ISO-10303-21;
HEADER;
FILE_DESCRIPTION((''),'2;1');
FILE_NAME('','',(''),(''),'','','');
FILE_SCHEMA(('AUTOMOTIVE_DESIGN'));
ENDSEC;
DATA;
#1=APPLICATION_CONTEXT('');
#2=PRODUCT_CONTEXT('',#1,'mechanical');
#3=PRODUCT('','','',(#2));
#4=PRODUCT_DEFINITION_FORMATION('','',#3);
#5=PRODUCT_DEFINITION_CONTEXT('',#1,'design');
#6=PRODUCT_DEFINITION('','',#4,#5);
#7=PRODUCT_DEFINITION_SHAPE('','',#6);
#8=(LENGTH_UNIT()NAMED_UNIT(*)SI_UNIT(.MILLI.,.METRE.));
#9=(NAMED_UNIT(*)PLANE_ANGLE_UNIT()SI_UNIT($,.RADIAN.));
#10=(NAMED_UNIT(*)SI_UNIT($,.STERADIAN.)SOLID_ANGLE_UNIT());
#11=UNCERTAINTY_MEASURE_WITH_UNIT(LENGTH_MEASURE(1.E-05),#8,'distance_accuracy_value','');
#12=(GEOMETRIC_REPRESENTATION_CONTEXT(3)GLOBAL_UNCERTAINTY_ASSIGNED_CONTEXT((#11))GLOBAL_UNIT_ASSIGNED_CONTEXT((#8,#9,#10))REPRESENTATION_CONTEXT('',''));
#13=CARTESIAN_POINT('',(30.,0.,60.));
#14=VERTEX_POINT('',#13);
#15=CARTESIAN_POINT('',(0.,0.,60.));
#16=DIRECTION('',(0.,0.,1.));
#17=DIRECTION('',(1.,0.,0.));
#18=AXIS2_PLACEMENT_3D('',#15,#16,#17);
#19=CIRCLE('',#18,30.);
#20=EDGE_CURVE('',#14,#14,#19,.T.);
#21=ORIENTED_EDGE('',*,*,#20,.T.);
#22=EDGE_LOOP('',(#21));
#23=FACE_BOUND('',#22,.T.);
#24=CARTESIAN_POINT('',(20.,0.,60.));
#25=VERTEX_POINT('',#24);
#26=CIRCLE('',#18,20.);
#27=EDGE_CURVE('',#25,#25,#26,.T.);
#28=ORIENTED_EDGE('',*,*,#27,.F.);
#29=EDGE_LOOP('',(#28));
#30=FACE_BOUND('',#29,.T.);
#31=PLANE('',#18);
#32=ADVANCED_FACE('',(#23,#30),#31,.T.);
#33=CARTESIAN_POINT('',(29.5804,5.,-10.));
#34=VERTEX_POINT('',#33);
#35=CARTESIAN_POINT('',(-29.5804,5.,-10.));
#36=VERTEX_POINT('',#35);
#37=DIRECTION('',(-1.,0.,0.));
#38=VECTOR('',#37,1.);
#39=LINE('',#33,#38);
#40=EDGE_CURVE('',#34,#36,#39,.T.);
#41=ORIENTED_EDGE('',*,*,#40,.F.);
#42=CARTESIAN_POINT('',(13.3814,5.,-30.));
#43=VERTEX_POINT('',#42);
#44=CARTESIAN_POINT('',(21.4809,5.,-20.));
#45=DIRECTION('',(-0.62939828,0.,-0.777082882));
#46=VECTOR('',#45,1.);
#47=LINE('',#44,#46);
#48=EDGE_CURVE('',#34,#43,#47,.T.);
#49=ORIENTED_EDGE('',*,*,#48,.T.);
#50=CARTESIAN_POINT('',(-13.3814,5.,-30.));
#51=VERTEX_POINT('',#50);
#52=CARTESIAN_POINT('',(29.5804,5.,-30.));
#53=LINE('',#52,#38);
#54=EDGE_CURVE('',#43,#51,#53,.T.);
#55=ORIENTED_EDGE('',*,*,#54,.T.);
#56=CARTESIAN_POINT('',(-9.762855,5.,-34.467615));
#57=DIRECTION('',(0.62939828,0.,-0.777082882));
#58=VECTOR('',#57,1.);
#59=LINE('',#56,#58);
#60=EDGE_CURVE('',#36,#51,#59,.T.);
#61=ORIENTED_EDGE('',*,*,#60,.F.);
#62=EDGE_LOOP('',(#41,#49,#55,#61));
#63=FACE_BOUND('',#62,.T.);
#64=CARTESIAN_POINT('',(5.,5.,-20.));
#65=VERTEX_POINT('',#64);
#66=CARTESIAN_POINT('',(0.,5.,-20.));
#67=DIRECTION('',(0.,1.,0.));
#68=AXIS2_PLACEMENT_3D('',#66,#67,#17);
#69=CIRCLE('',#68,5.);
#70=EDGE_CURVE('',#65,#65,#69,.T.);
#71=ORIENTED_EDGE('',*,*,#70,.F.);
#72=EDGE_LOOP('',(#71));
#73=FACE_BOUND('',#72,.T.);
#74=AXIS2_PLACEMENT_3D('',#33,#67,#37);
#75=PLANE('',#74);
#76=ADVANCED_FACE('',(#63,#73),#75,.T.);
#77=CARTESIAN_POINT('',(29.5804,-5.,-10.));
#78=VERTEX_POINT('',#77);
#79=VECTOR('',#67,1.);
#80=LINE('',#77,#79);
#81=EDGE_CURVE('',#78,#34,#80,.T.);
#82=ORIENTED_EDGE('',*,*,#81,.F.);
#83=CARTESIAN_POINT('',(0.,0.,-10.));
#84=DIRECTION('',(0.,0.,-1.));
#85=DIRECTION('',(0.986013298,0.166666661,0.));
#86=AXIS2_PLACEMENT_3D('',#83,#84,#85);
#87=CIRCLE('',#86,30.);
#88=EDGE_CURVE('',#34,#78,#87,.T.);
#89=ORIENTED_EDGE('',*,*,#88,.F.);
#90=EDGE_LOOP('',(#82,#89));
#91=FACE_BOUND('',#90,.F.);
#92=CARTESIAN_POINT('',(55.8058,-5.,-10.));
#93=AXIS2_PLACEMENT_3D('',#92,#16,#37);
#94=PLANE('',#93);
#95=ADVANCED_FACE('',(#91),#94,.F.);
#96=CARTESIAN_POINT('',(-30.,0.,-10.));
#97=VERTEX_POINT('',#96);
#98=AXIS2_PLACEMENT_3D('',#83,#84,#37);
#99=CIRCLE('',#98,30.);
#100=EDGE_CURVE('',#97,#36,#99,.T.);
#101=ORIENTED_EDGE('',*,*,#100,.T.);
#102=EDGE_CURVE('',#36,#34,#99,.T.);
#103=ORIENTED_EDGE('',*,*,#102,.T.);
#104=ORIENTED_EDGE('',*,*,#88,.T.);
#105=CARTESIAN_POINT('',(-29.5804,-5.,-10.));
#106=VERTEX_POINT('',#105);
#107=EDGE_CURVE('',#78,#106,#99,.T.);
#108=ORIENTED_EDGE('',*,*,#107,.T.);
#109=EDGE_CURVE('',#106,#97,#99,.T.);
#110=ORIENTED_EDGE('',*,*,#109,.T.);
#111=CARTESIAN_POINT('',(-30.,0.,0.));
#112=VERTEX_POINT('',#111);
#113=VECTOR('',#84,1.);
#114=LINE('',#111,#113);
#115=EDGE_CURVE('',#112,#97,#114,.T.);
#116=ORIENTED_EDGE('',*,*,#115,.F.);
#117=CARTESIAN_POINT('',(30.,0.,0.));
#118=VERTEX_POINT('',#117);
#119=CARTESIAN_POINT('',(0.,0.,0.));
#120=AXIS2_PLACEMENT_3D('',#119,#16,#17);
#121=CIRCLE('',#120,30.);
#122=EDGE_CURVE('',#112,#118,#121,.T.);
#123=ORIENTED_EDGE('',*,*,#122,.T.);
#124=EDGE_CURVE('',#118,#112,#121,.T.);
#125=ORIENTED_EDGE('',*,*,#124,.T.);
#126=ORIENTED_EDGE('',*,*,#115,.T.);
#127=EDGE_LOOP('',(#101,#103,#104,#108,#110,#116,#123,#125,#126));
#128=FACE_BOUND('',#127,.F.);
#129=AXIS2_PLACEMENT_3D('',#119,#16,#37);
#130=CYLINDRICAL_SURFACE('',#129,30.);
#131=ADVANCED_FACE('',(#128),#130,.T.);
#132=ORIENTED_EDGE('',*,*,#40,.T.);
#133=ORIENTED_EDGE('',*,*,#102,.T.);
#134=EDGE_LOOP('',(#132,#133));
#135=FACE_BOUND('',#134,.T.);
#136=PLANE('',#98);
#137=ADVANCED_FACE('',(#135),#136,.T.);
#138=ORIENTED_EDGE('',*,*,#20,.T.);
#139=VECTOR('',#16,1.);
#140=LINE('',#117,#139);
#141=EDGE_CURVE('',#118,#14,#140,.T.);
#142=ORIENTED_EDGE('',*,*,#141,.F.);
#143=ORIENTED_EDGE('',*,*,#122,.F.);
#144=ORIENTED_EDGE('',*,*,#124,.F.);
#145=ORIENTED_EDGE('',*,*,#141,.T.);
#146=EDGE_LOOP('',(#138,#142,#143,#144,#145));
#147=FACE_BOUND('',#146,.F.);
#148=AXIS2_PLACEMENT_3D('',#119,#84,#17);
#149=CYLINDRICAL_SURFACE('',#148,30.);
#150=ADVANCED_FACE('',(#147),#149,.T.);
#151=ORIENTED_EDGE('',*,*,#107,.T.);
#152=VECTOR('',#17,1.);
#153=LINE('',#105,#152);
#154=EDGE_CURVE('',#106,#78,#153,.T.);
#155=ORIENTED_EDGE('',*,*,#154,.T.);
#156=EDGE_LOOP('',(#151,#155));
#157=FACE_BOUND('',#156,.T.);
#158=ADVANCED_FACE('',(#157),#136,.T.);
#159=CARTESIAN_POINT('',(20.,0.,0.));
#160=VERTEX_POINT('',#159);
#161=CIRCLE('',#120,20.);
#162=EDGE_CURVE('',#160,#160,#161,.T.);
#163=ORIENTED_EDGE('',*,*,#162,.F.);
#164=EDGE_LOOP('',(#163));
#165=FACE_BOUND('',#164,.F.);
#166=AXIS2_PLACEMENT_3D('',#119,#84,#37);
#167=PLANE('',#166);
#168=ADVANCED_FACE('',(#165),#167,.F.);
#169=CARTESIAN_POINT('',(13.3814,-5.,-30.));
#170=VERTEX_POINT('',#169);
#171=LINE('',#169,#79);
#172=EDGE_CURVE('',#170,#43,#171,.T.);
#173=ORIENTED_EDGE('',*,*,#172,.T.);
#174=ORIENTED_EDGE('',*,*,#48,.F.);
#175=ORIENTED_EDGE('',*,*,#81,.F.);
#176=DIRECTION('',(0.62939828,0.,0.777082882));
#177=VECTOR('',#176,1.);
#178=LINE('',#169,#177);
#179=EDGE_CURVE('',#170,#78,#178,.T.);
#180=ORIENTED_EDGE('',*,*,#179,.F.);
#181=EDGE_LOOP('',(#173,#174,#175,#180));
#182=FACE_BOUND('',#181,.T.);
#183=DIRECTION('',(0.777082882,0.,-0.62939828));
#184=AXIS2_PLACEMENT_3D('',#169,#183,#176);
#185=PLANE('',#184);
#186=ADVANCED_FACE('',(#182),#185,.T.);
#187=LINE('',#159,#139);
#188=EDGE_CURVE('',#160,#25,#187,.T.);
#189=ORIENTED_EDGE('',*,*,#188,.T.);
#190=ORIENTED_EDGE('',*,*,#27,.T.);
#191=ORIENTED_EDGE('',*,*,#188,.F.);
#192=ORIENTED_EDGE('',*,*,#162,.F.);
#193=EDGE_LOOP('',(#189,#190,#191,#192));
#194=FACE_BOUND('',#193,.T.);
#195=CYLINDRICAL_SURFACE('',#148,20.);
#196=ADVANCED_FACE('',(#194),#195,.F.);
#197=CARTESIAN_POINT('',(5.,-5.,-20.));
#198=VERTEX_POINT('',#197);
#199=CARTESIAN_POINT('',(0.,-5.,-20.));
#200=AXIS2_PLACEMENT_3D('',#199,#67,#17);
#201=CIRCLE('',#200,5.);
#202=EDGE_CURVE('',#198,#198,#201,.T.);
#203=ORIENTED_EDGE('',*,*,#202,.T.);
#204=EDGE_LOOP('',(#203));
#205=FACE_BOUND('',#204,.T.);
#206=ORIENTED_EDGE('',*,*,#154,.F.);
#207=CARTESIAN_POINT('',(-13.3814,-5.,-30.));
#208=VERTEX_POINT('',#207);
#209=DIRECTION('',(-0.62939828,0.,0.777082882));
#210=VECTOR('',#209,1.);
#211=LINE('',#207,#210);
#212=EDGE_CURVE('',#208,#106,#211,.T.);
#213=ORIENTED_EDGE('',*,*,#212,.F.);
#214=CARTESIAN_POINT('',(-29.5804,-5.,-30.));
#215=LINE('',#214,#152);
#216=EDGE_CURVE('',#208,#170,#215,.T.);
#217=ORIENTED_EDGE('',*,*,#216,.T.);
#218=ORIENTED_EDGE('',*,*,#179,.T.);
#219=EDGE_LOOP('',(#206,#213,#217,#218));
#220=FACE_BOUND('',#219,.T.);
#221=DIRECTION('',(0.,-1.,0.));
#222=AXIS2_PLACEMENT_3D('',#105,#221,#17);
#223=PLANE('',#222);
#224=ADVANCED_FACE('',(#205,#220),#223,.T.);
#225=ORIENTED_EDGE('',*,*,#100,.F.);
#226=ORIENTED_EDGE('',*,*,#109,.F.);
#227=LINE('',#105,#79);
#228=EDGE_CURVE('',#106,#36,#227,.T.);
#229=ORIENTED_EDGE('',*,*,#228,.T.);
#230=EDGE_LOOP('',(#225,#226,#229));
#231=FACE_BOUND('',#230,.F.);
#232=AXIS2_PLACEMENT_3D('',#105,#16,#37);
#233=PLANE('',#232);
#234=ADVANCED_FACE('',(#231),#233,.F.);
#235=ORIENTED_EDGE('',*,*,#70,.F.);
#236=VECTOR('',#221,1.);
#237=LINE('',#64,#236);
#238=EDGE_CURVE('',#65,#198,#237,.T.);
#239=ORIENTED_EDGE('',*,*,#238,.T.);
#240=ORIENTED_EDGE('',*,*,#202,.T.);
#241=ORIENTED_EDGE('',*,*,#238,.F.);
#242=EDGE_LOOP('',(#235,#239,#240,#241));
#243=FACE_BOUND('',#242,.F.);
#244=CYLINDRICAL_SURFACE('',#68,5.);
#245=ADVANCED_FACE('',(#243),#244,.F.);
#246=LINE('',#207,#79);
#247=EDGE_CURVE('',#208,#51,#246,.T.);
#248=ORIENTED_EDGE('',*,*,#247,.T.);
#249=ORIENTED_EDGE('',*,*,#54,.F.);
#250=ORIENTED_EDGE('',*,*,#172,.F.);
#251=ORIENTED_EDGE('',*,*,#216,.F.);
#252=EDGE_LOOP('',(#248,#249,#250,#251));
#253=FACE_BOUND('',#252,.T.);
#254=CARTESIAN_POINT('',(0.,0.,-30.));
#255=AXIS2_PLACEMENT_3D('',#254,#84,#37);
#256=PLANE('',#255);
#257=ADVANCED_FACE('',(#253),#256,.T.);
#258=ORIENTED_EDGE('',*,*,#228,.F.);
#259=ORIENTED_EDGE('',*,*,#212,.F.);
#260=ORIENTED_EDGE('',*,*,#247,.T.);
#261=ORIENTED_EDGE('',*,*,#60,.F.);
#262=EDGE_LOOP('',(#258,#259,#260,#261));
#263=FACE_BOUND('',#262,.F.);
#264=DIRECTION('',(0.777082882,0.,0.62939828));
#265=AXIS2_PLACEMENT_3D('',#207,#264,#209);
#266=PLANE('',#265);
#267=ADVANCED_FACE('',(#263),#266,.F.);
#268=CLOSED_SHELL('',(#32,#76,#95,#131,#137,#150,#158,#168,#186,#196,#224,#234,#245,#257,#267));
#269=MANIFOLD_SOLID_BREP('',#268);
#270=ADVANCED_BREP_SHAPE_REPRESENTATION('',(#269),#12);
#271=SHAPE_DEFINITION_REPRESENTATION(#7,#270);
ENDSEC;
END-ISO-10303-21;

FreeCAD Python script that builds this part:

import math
import FreeCAD as App
import Part
import Sketcher


def add_polygon(sketch, points):
    """Adds a closed chain of lines whose ends are joined by coincident constraints."""
    first, n = sketch.GeometryCount, len(points)
    for a, b in zip(points, points[1:] + points[:1]):
        sketch.addGeometry(Part.LineSegment(App.Vector(*a, 0), App.Vector(*b, 0)), False)
    for i in range(n):
        sketch.addConstraint(Sketcher.Constraint("Coincident", first + i, 2, first + (i + 1) % n, 1))

doc = App.newDocument("Part")
body = doc.addObject("PartDesign::Body", "Body")

# Sketch on XY plane
sketch1 = doc.addObject("Sketcher::SketchObject", "Sketch")
body.addObject(sketch1)
sketch1.AttachmentSupport = (doc.XY_Plane, [""])
sketch1.MapMode = "FlatFace"
sketch1.addGeometry([
    Part.Circle(App.Vector(0, 0, 0), App.Vector(0, 0, 1), 30),
    Part.Circle(App.Vector(0, 0, 0), App.Vector(0, 0, 1), 20),
], False)
sketch1.addConstraint([
    Sketcher.Constraint("Coincident", 0, 3, -1, 1),
    Sketcher.Constraint("Coincident", 1, 3, -1, 1),
    Sketcher.Constraint("Diameter", 1, 40.0),
    Sketcher.Constraint("Diameter", 0, 60.0),
])
pad1 = doc.addObject("PartDesign::Pad", "Pad")
body.addObject(pad1)
pad1.Profile = sketch1
pad1.Length = 60

# Sketch on XY plane
sketch2 = doc.addObject("Sketcher::SketchObject", "Sketch001")
body.addObject(sketch2)
sketch2.AttachmentSupport = (doc.XY_Plane, [""])
sketch2.MapMode = "FlatFace"
sketch2.addGeometry(Part.Circle(App.Vector(0, 0, 0), App.Vector(0, 0, 1), 30), False)
sketch2.addConstraint([
    Sketcher.Constraint("Coincident", 0, 3, -1, 1),
    Sketcher.Constraint("Diameter", 0, 60.0),
])
pad2 = doc.addObject("PartDesign::Pad", "Pad001")
body.addObject(pad2)
pad2.Profile = sketch2
pad2.Length = 10
pad2.Reversed = True

# Sketch on XY plane
sketch3 = doc.addObject("Sketcher::SketchObject", "Sketch002")
body.addObject(sketch3)
sketch3.AttachmentSupport = (doc.XY_Plane, [""])
sketch3.MapMode = "FlatFace"
sketch3.AttachmentOffset = App.Placement(App.Vector(0, 0, -10), App.Rotation())
sketch3.addGeometry([
    Part.ArcOfCircle(Part.Circle(App.Vector(0, 0, 0), App.Vector(0, 0, 1), 30), math.radians(-9.59), math.radians(9.59)),
    Part.LineSegment(App.Vector(30, -5, 0), App.Vector(-30, -5, 0)),
    Part.ArcOfCircle(Part.Circle(App.Vector(0, 0, 0), App.Vector(0, 0, 1), 30), math.radians(170.41), math.radians(189.59)),
    Part.LineSegment(App.Vector(-30, 5, 0), App.Vector(30, 5, 0)),
], False)
sketch3.addConstraint([
    Sketcher.Constraint("Coincident", 0, 1, 1, 1),
    Sketcher.Constraint("Coincident", 1, 2, 2, 2),
    Sketcher.Constraint("Coincident", 2, 1, 3, 1),
    Sketcher.Constraint("Coincident", 3, 2, 0, 2),
    Sketcher.Constraint("Horizontal", 1),
    Sketcher.Constraint("Horizontal", 3),
    Sketcher.Constraint("Coincident", 0, 3, -1, 1),
    Sketcher.Constraint("Coincident", 2, 3, -1, 1),
    Sketcher.Constraint("Equal", 0, 2),
    Sketcher.Constraint("Vertical", 1, 2, 2, 1),
    Sketcher.Constraint("Radius", 0, 30.0),
    Sketcher.Constraint("DistanceY", 1, 2, 2, 1, 10.0),
])
pad3 = doc.addObject("PartDesign::Pad", "Pad002")
body.addObject(pad3)
pad3.Profile = sketch3
pad3.Length = 20
pad3.Reversed = True

# Sketch on XZ plane
sketch4 = doc.addObject("Sketcher::SketchObject", "Sketch003")
body.addObject(sketch4)
sketch4.AttachmentSupport = (doc.XZ_Plane, [""])
sketch4.MapMode = "FlatFace"
sketch4.AttachmentOffset = App.Placement(App.Vector(0, 0, -5), App.Rotation())
sketch4.addGeometry(Part.Circle(App.Vector(0, -20, 0), App.Vector(0, 0, 1), 5), False)
sketch4.addConstraint([
    Sketcher.Constraint("PointOnObject", 0, 3, -2),
    Sketcher.Constraint("Diameter", 0, 10.0),
    Sketcher.Constraint("DistanceY", 0, 3, -1, 1, 20.0),
])
pocket1 = doc.addObject("PartDesign::Pocket", "Pocket")
body.addObject(pocket1)
pocket1.Profile = sketch4
pocket1.Type = "ThroughAll"
pocket1.Midplane = True

# Sketch on XZ plane
sketch5 = doc.addObject("Sketcher::SketchObject", "Sketch004")
body.addObject(sketch5)
sketch5.AttachmentSupport = (doc.XZ_Plane, [""])
sketch5.MapMode = "FlatFace"
sketch5.AttachmentOffset = App.Placement(App.Vector(0, 0, 5), App.Rotation())
add_polygon(sketch5, [(13, -30), (56, -30), (56, -10), (30, -10)])  # lines 0-3
add_polygon(sketch5, [(-13, -30), (-30, -10), (-60, -10), (-60, -30)])  # lines 4-7
sketch5.addConstraint([
    Sketcher.Constraint("Horizontal", 0),
    Sketcher.Constraint("Vertical", 1),
    Sketcher.Constraint("Horizontal", 2),
    Sketcher.Constraint("Horizontal", 5),
    Sketcher.Constraint("Vertical", 6),
    Sketcher.Constraint("Horizontal", 7),
    Sketcher.Constraint("Symmetric", 2, 2, 4, 2, -2),
    Sketcher.Constraint("Symmetric", 3, 2, 7, 2, -2),
    Sketcher.Constraint("DistanceY", 1, 1, 1, 2, 20.0),
    Sketcher.Constraint("DistanceY", 0, 2, -1, 1, 30.0),
    Sketcher.Constraint("DistanceX", 5, 2, 5, 1, 30.178),
    Sketcher.Constraint("DistanceX", 7, 1, 7, 2, 46.377),
    Sketcher.Constraint("DistanceX", 0, 1, 0, 2, 42.4244),
    Sketcher.Constraint("DistanceX", 5, 2, 1, 2, 115.564),
])
pocket2 = doc.addObject("PartDesign::Pocket", "Pocket001")
body.addObject(pocket2)
pocket2.Profile = sketch5
pocket2.Type = "ThroughAll"

doc.recompute()
